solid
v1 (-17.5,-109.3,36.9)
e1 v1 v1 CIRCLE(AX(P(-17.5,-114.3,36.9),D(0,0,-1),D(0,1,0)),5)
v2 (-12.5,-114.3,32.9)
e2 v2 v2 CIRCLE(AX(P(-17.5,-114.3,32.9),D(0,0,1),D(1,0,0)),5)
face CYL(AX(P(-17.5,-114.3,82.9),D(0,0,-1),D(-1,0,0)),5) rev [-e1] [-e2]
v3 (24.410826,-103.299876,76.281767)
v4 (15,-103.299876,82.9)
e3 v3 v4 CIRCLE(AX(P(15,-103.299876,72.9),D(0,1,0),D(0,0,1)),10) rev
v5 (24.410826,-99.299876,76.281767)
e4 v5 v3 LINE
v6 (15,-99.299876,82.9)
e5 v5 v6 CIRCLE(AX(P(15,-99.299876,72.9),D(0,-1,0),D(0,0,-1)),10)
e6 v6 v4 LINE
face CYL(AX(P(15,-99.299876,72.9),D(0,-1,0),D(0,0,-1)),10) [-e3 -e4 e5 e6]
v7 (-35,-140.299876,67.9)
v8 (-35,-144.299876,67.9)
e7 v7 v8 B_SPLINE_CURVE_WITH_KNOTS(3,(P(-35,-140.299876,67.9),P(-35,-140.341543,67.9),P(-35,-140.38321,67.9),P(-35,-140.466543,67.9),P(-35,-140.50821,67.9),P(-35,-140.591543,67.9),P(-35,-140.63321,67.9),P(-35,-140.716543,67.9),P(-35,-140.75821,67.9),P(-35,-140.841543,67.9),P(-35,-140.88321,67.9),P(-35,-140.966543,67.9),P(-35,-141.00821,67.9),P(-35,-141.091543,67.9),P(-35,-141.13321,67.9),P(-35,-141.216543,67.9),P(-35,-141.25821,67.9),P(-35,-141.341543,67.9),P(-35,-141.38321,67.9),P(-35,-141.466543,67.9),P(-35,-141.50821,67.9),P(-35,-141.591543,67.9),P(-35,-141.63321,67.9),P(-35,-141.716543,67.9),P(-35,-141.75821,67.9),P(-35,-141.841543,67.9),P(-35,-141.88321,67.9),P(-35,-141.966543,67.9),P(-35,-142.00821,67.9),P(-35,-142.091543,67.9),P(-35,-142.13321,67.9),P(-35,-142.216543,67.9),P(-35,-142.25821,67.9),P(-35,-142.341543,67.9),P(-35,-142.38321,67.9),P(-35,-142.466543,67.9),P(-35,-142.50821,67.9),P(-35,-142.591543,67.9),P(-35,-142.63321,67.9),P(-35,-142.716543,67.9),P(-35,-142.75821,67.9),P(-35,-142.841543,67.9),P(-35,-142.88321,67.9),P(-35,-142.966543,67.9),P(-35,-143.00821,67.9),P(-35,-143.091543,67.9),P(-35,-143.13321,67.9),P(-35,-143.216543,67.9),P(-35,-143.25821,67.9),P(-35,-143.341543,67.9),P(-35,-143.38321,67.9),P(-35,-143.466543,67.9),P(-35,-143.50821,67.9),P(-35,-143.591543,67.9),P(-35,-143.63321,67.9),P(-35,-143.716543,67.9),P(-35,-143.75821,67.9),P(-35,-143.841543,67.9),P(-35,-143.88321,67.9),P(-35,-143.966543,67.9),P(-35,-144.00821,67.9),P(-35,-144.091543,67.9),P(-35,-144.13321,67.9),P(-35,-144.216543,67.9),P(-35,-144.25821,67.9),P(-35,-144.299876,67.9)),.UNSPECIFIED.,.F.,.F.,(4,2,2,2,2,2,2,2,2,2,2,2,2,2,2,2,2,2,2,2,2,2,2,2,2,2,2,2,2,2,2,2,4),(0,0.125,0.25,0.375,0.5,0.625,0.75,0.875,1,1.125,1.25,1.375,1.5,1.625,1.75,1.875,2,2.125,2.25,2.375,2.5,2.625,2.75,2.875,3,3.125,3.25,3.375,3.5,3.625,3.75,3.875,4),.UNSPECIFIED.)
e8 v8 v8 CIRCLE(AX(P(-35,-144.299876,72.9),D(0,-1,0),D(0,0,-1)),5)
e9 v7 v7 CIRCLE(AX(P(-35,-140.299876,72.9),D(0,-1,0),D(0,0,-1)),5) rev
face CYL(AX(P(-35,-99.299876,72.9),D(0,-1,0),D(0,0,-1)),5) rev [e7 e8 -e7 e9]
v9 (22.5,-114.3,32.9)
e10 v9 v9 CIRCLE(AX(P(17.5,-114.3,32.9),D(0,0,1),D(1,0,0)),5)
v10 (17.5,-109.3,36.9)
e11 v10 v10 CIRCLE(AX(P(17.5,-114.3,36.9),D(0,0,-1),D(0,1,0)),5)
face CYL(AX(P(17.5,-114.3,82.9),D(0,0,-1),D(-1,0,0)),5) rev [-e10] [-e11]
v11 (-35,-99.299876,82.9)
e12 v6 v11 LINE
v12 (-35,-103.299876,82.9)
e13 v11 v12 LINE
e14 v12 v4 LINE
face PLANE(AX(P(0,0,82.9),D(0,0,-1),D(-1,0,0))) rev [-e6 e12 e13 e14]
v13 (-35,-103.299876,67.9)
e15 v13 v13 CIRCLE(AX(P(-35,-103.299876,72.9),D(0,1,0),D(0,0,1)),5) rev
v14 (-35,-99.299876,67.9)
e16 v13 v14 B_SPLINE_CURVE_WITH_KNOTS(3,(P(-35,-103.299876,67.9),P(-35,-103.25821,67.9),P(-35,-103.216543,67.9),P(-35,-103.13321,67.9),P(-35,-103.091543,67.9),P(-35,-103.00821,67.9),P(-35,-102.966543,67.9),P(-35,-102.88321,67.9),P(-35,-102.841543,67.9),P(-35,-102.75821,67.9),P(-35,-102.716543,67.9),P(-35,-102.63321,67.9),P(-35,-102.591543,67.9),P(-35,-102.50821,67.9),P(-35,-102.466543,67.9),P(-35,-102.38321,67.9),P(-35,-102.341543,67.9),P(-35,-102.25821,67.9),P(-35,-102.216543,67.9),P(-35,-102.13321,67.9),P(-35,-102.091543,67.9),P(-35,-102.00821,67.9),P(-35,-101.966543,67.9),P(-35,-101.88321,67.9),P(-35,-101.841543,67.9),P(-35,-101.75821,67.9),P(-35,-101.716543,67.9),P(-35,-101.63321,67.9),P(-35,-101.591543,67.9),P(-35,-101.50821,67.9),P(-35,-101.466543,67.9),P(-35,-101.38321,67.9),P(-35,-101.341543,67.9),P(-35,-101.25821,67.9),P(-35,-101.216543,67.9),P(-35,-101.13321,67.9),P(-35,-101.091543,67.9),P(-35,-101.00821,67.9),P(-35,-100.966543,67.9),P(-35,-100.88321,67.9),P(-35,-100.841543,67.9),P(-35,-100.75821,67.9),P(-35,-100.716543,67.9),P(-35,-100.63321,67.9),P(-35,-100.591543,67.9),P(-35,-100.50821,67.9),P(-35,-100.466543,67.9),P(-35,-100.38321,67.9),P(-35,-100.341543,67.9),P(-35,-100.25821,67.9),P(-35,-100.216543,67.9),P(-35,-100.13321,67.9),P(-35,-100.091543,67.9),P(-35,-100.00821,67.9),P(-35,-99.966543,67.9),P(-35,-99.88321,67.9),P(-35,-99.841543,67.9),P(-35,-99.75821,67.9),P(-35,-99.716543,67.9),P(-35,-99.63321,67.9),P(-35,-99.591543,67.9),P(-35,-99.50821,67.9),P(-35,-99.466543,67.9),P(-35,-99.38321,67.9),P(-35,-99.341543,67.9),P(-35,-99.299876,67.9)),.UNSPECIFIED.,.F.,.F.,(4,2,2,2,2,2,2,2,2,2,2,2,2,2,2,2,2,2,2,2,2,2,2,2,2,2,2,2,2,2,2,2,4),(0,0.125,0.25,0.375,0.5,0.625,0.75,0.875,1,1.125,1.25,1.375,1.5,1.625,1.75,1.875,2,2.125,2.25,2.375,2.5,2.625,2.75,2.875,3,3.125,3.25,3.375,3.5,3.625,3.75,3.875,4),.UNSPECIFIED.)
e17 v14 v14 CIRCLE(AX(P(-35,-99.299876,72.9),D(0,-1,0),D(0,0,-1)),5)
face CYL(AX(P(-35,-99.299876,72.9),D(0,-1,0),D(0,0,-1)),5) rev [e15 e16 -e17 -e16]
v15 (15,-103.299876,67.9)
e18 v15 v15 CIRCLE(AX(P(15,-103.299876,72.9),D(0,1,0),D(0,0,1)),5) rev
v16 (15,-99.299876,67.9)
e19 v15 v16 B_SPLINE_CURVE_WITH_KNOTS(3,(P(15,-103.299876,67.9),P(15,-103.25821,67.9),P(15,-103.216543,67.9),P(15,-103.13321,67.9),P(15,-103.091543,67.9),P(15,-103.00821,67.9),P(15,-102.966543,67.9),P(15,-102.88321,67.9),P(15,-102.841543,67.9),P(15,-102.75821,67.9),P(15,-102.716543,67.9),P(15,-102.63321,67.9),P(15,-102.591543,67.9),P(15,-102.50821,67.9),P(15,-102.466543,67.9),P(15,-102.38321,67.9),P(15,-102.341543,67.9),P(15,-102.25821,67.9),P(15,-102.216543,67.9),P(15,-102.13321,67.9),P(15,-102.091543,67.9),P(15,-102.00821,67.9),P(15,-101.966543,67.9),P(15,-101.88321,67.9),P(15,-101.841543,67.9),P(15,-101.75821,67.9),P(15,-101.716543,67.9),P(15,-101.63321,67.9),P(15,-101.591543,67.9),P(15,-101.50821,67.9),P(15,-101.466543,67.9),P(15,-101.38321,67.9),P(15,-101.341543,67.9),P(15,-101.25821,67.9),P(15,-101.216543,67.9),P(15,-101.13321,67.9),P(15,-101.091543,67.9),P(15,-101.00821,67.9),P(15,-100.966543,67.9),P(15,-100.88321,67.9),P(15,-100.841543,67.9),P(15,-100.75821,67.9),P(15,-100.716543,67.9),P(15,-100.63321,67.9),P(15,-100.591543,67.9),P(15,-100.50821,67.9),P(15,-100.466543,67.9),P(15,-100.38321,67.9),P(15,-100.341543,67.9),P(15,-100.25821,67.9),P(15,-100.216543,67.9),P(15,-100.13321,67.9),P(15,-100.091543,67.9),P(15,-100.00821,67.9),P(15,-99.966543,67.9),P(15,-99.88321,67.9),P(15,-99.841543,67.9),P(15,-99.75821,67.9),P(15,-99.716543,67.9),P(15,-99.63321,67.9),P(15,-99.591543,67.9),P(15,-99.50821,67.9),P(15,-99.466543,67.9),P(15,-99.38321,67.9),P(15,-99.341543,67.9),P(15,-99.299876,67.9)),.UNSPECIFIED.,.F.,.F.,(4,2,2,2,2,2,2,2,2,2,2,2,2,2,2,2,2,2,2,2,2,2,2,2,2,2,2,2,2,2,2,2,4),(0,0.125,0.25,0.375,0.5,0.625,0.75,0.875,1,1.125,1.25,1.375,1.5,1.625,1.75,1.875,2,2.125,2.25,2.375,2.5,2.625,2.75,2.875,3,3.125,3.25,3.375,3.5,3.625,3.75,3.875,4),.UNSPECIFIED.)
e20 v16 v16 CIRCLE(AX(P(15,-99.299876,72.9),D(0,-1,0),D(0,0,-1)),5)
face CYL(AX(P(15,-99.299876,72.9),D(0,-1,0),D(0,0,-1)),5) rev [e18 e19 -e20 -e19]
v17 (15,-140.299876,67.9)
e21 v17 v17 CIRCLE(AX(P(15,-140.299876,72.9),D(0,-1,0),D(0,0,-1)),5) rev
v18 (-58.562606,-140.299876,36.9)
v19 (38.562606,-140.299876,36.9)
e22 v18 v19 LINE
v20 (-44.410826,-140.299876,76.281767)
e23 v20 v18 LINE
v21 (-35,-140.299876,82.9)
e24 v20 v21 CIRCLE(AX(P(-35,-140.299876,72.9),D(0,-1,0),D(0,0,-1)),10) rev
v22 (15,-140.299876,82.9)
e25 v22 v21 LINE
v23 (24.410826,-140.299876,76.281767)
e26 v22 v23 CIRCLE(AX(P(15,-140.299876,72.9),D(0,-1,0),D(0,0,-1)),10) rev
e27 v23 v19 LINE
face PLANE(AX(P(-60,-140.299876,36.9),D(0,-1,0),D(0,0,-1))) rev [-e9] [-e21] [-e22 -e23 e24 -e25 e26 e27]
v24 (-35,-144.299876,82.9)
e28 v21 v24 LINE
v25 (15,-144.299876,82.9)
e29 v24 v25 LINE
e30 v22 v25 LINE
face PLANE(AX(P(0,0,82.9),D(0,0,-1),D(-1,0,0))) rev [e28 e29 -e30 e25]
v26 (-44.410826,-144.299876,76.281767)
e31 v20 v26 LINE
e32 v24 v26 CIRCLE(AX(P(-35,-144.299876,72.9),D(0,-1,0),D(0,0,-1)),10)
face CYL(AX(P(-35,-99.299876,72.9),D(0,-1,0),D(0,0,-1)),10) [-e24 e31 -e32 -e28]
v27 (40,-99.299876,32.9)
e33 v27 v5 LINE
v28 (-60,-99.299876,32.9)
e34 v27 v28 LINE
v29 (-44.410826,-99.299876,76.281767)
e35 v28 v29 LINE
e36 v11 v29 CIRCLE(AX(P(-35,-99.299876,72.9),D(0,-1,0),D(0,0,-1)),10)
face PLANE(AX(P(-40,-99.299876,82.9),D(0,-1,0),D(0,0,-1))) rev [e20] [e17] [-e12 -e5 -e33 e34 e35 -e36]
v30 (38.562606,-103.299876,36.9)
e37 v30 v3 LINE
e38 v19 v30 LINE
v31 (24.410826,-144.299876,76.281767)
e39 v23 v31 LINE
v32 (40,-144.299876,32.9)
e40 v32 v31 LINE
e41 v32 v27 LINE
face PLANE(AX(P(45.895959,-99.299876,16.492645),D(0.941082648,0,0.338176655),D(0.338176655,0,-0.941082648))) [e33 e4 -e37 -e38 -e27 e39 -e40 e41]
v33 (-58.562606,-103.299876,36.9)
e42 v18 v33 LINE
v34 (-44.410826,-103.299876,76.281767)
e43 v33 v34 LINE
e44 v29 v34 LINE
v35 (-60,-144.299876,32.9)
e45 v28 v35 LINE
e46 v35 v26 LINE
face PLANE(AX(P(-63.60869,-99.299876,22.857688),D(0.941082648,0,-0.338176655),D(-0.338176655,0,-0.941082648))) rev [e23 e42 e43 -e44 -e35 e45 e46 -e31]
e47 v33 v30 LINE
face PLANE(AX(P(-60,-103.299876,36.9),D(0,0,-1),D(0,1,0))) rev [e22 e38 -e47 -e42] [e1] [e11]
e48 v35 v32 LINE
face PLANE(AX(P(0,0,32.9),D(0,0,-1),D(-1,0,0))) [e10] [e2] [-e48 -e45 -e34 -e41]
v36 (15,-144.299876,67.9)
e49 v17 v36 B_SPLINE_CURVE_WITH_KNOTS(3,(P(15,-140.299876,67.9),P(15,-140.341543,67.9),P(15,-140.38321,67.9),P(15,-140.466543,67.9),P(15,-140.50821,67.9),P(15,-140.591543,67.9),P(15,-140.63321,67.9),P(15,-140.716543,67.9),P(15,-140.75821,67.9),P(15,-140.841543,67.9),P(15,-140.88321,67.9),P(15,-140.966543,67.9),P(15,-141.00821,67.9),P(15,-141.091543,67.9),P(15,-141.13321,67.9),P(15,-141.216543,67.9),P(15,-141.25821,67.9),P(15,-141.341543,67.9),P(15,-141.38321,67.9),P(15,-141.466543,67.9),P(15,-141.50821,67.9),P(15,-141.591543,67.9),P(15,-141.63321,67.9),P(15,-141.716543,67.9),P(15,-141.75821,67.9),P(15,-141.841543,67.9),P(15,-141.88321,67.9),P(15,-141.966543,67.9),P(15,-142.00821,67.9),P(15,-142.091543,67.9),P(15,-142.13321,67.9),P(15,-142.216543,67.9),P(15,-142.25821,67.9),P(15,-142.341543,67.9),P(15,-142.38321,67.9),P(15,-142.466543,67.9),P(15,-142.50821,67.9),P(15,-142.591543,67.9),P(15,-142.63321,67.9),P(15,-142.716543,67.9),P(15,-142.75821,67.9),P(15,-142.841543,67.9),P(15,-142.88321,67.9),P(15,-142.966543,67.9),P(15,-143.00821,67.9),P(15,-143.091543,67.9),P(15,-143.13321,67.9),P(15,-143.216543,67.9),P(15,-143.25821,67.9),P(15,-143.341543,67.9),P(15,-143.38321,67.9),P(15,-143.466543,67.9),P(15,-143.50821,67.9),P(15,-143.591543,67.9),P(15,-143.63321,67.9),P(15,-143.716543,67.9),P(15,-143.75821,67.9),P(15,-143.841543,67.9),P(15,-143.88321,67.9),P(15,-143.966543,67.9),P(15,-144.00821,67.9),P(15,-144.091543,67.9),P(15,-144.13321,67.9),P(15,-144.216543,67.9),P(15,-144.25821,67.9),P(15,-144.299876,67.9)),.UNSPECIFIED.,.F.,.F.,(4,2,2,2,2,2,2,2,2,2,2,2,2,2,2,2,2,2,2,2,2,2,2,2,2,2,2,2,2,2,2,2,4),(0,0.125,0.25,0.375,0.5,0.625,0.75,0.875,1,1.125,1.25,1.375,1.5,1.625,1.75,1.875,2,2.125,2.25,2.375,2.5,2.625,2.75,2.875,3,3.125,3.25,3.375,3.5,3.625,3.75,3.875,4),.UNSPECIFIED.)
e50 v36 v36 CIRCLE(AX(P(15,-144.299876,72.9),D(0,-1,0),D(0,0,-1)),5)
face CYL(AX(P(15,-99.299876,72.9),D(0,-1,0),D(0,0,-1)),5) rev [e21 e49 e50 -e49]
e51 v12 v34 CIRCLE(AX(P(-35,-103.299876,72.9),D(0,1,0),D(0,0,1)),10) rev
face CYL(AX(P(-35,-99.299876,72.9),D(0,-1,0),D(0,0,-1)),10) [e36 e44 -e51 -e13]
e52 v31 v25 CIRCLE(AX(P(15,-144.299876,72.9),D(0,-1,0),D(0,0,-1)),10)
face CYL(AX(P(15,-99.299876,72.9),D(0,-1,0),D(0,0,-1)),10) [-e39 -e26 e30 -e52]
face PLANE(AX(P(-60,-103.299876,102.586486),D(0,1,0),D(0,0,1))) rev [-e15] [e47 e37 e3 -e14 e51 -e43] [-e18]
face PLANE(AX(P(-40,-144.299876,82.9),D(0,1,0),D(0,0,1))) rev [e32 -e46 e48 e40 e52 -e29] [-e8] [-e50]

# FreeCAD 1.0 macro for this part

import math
import FreeCAD as App
import Part
import Sketcher

doc = App.newDocument("Part")
body = doc.addObject("PartDesign::Body", "Body")

# Sketch on XY plane
sketch1 = body.newObject("Sketcher::SketchObject", "Sketch")
sketch1.AttachmentSupport = (doc.getObject("XY_Plane"), [""])
sketch1.MapMode = "FlatFace"
sketch1.AttachmentOffset = App.Placement(App.Vector(0, 0, 32.9), App.Rotation())
sketch1.addGeometry(Part.LineSegment(App.Vector(40, -144.299876, 0), App.Vector(40, -99.299876, 0)), False)
sketch1.addGeometry(Part.LineSegment(App.Vector(40, -99.299876, 0), App.Vector(-60, -99.299876, 0)), False)
sketch1.addGeometry(Part.LineSegment(App.Vector(-60, -99.299876, 0), App.Vector(-60, -144.299876, 0)), False)
sketch1.addGeometry(Part.LineSegment(App.Vector(-60, -144.299876, 0), App.Vector(40, -144.299876, 0)), False)
sketch1.addGeometry(Part.Circle(App.Vector(-17.5, -114.3, 0), App.Vector(0, 0, 1), 5), False)
sketch1.addGeometry(Part.Circle(App.Vector(17.5, -114.3, 0), App.Vector(0, 0, 1), 5), False)
sketch1.addConstraint(Sketcher.Constraint("Coincident", 0, 2, 1, 1))
sketch1.addConstraint(Sketcher.Constraint("Coincident", 1, 2, 2, 1))
sketch1.addConstraint(Sketcher.Constraint("Coincident", 2, 2, 3, 1))
sketch1.addConstraint(Sketcher.Constraint("Coincident", 3, 2, 0, 1))
sketch1.addConstraint(Sketcher.Constraint("Vertical", 0))
sketch1.addConstraint(Sketcher.Constraint("Horizontal", 1))
sketch1.addConstraint(Sketcher.Constraint("Vertical", 2))
sketch1.addConstraint(Sketcher.Constraint("Horizontal", 3))
sketch1.addConstraint(Sketcher.Constraint("Equal", 4, 5))
sketch1.addConstraint(Sketcher.Constraint("Symmetric", 4, 3, 5, 3, -2))
sketch1.addConstraint(Sketcher.Constraint("Diameter", 4, 10.0))
sketch1.addConstraint(Sketcher.Constraint("DistanceX", 1, 2, 1, 1, 100.0))
sketch1.addConstraint(Sketcher.Constraint("DistanceY", 0, 1, 0, 2, 45.0))
sketch1.addConstraint(Sketcher.Constraint("DistanceX", -1, 1, 0, 2, 40.0))
sketch1.addConstraint(Sketcher.Constraint("DistanceX", 4, 3, 5, 3, 35.0))
sketch1.addConstraint(Sketcher.Constraint("DistanceY", 4, 3, -1, 1, 114.3))
sketch1.addConstraint(Sketcher.Constraint("DistanceY", 0, 2, -1, 1, 99.299876))
pad1 = body.newObject("PartDesign::Pad", "Pad")
pad1.Profile = sketch1
pad1.Length = 50

# Sketch on XZ plane
sketch2 = body.newObject("Sketcher::SketchObject", "Sketch001")
sketch2.AttachmentSupport = (doc.getObject("XZ_Plane"), [""])
sketch2.MapMode = "FlatFace"
sketch2.AttachmentOffset = App.Placement(App.Vector(0, 0, 144.299876), App.Rotation())
sketch2.addGeometry(Part.LineSegment(App.Vector(-60, 82.9, 0), App.Vector(-60, 32.9, 0)), False)
sketch2.addGeometry(Part.LineSegment(App.Vector(-60, 32.9, 0), App.Vector(-44.410826, 76.281767, 0)), False)
sketch2.addGeometry(Part.ArcOfCircle(Part.Circle(App.Vector(-35, 72.9, 0), App.Vector(0, 0, 1), 10), math.radians(90), math.radians(160.234175)), False)
sketch2.addGeometry(Part.LineSegment(App.Vector(-35, 82.9, 0), App.Vector(-60, 82.9, 0)), False)
sketch2.addGeometry(Part.LineSegment(App.Vector(24.410826, 76.281767, 0), App.Vector(40, 32.9, 0)), False)
sketch2.addGeometry(Part.LineSegment(App.Vector(40, 32.9, 0), App.Vector(40, 82.9, 0)), False)
sketch2.addGeometry(Part.LineSegment(App.Vector(40, 82.9, 0), App.Vector(15, 82.9, 0)), False)
sketch2.addGeometry(Part.ArcOfCircle(Part.Circle(App.Vector(15, 72.9, 0), App.Vector(0, 0, 1), 10), math.radians(19.765825), math.radians(90)), False)
sketch2.addGeometry(Part.Circle(App.Vector(15, 72.9, 0), App.Vector(0, 0, 1), 5), False)
sketch2.addGeometry(Part.Circle(App.Vector(-35, 72.9, 0), App.Vector(0, 0, 1), 5), False)
sketch2.addConstraint(Sketcher.Constraint("Coincident", 0, 2, 1, 1))
sketch2.addConstraint(Sketcher.Constraint("Tangent", 1, 2, 2, 2))
sketch2.addConstraint(Sketcher.Constraint("Tangent", 2, 1, 3, 1))
sketch2.addConstraint(Sketcher.Constraint("Coincident", 3, 2, 0, 1))
sketch2.addConstraint(Sketcher.Constraint("Coincident", 4, 2, 5, 1))
sketch2.addConstraint(Sketcher.Constraint("Coincident", 5, 2, 6, 1))
sketch2.addConstraint(Sketcher.Constraint("Tangent", 6, 2, 7, 2))
sketch2.addConstraint(Sketcher.Constraint("Tangent", 7, 1, 4, 1))
sketch2.addConstraint(Sketcher.Constraint("Vertical", 0))
sketch2.addConstraint(Sketcher.Constraint("Horizontal", 3))
sketch2.addConstraint(Sketcher.Constraint("Vertical", 5))
sketch2.addConstraint(Sketcher.Constraint("Horizontal", 6))
sketch2.addConstraint(Sketcher.Constraint("Coincident", 8, 3, 7, 3))
sketch2.addConstraint(Sketcher.Constraint("Coincident", 9, 3, 2, 3))
sketch2.addConstraint(Sketcher.Constraint("Equal", 2, 7))
sketch2.addConstraint(Sketcher.Constraint("Equal", 8, 9))
sketch2.addConstraint(Sketcher.Constraint("Horizontal", 2, 3, 7, 3))
sketch2.addConstraint(Sketcher.Constraint("Horizontal", 0, 2, 4, 2))
sketch2.addConstraint(Sketcher.Constraint("Horizontal", 1, 2, 7, 1))
sketch2.addConstraint(Sketcher.Constraint("Diameter", 8, 10.0))
sketch2.addConstraint(Sketcher.Constraint("Radius", 2, 10.0))
sketch2.addConstraint(Sketcher.Constraint("DistanceX", 3, 2, 3, 1, 25.0))
sketch2.addConstraint(Sketcher.Constraint("DistanceY", 0, 2, 0, 1, 50.0))
sketch2.addConstraint(Sketcher.Constraint("DistanceX", 2, 3, -1, 1, 35.0))
sketch2.addConstraint(Sketcher.Constraint("DistanceX", -1, 1, 7, 3, 15.0))
sketch2.addConstraint(Sketcher.Constraint("DistanceY", -1, 1, 2, 3, 72.9))
pocket1 = body.newObject("PartDesign::Pocket", "Pocket")
pocket1.Profile = sketch2
pocket1.Type = "ThroughAll"

# Sketch on YZ plane
sketch3 = body.newObject("Sketcher::SketchObject", "Sketch002")
sketch3.AttachmentSupport = (doc.getObject("YZ_Plane"), [""])
sketch3.MapMode = "FlatFace"
sketch3.addGeometry(Part.LineSegment(App.Vector(-103.299876, 102.586486, 0), App.Vector(-140.299876, 102.586486, 0)), False)
sketch3.addGeometry(Part.LineSegment(App.Vector(-140.299876, 102.586486, 0), App.Vector(-140.299876, 36.9, 0)), False)
sketch3.addGeometry(Part.LineSegment(App.Vector(-140.299876, 36.9, 0), App.Vector(-103.299876, 36.9, 0)), False)
sketch3.addGeometry(Part.LineSegment(App.Vector(-103.299876, 36.9, 0), App.Vector(-103.299876, 102.586486, 0)), False)
sketch3.addConstraint(Sketcher.Constraint("Coincident", 0, 2, 1, 1))
sketch3.addConstraint(Sketcher.Constraint("Coincident", 1, 2, 2, 1))
sketch3.addConstraint(Sketcher.Constraint("Coincident", 2, 2, 3, 1))
sketch3.addConstraint(Sketcher.Constraint("Coincident", 3, 2, 0, 1))
sketch3.addConstraint(Sketcher.Constraint("Horizontal", 0))
sketch3.addConstraint(Sketcher.Constraint("Vertical", 1))
sketch3.addConstraint(Sketcher.Constraint("Horizontal", 2))
sketch3.addConstraint(Sketcher.Constraint("Vertical", 3))
sketch3.addConstraint(Sketcher.Constraint("DistanceX", 0, 2, 0, 1, 37.0))
sketch3.addConstraint(Sketcher.Constraint("DistanceY", -1, 1, 1, 2, 36.9))
sketch3.addConstraint(Sketcher.Constraint("DistanceY", 1, 2, 1, 1, 65.686486))
sketch3.addConstraint(Sketcher.Constraint("DistanceX", 0, 2, -1, 1, 140.299876))
pocket2 = body.newObject("PartDesign::Pocket", "Pocket001")
pocket2.Profile = sketch3
pocket2.Type = "ThroughAll"
pocket2.Midplane = True

doc.recompute()
